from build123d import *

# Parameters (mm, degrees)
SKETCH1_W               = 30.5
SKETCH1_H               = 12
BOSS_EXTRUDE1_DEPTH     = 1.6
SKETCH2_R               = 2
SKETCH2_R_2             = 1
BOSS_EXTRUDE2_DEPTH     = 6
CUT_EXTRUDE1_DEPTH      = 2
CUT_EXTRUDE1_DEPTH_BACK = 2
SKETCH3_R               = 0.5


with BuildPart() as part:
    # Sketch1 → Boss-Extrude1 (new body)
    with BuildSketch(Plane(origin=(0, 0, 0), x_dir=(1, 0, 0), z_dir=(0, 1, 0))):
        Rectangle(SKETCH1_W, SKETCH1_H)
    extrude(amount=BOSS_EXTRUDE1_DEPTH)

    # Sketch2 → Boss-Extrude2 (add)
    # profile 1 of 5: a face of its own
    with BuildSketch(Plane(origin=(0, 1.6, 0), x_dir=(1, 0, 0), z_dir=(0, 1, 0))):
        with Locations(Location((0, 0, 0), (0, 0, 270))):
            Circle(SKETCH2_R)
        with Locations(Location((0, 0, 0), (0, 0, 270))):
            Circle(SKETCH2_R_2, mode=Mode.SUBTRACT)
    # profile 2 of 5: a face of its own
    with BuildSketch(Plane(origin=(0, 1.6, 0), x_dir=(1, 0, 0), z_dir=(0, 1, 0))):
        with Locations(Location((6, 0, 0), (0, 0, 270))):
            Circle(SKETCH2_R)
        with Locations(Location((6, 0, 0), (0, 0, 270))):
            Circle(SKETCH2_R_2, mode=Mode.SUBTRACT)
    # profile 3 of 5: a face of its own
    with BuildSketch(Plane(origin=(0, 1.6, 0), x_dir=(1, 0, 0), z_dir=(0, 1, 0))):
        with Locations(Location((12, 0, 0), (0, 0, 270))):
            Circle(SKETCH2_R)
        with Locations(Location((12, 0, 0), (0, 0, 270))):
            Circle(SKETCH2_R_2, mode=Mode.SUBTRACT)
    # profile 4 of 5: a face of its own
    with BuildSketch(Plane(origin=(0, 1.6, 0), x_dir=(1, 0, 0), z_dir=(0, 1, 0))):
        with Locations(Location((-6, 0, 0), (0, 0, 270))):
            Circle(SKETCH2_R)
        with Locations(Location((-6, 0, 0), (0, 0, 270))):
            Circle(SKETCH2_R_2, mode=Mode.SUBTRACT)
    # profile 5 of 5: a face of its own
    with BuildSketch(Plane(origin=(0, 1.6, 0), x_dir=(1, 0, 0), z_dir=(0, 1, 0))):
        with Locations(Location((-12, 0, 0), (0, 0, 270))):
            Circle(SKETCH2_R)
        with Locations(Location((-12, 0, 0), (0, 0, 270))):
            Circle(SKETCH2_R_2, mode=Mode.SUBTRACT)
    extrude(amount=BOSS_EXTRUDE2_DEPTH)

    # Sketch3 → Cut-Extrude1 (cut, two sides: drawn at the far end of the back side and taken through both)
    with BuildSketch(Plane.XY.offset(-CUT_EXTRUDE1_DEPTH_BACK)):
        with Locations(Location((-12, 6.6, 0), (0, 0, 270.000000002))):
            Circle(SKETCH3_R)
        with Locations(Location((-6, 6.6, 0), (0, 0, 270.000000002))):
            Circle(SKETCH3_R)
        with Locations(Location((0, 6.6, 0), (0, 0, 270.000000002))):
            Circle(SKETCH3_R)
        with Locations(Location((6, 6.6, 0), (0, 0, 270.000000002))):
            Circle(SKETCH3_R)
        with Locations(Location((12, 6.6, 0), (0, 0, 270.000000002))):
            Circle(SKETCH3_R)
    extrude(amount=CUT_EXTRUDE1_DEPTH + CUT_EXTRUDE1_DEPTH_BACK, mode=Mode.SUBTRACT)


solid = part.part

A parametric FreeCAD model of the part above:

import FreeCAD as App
import Part
import Sketcher
Q = App.Units.Quantity

doc = App.newDocument("Part")
params = doc.addObject("Spreadsheet::Sheet", "Params")
for row, (alias, value) in enumerate([
    ("sketch1_height", "12 mm"),
    ("sketch1_width", "30.5 mm"),
    ("pad1_length", "1.6 mm"),
    ("sketch2_diameter", "4 mm"),
    ("sketch2_diameter2", "2 mm"),
    ("pad2_length", "6 mm"),
    ("sketch3_diameter", "1 mm"),
], start=1):
    params.set(f"A{row}", alias)
    params.set(f"B{row}", "=" + value)
    params.setAlias(f"B{row}", alias)

body = doc.addObject("PartDesign::Body", "Body")

sketch1 = body.newObject("Sketcher::SketchObject", "Sketch")
sketch1.AttachmentSupport = (doc.getObject("XZ_Plane"), [""])
sketch1.MapMode = "FlatFace"
sketch1.addGeometry([
    Part.LineSegment(App.Vector(-15, -6, 0), App.Vector(-15, 6, 0)),
    Part.LineSegment(App.Vector(-15, 6, 0), App.Vector(15, 6, 0)),
    Part.LineSegment(App.Vector(15, 6, 0), App.Vector(15, -6, 0)),
    Part.LineSegment(App.Vector(15, -6, 0), App.Vector(-15, -6, 0)),
], False)
sketch1.addConstraint([
    Sketcher.Constraint("Coincident", 0, 2, 1, 1),
    Sketcher.Constraint("Coincident", 1, 2, 2, 1),
    Sketcher.Constraint("Coincident", 2, 2, 3, 1),
    Sketcher.Constraint("Coincident", 3, 2, 0, 1),
    Sketcher.Constraint("Vertical", 0),
    Sketcher.Constraint("Horizontal", 1),
    Sketcher.Constraint("Vertical", 2),
    Sketcher.Constraint("Horizontal", 3),
    Sketcher.Constraint("Symmetric", 0, 2, 2, 2, -1, 1),
    Sketcher.Constraint("DistanceY", 0, 1, 0, 2, Q("12 mm")),
    Sketcher.Constraint("DistanceX", 1, 1, 1, 2, Q("30.5 mm")),
])
sketch1.setExpression("Constraints[9]", "Params.sketch1_height")
sketch1.setExpression("Constraints[10]", "Params.sketch1_width")
pad1 = body.newObject("PartDesign::Pad", "Pad")
pad1.Profile = sketch1
pad1.setExpression("Length", "Params.pad1_length")
pad1.Reversed = True

sketch2 = body.newObject("Sketcher::SketchObject", "Sketch001")
sketch2.AttachmentSupport = (doc.getObject("XZ_Plane"), [""])
sketch2.MapMode = "FlatFace"
sketch2.AttachmentOffset = App.Placement(App.Vector(0, 0, -1.6), App.Rotation())
sketch2.addGeometry([
    Part.Circle(App.Vector(0, 0, 0), App.Vector(0, 0, 1), 2),
    Part.Circle(App.Vector(0, 0, 0), App.Vector(0, 0, 1), 1),
    Part.Circle(App.Vector(6, 0, 0), App.Vector(0, 0, 1), 2),
    Part.Circle(App.Vector(6, 0, 0), App.Vector(0, 0, 1), 1),
    Part.Circle(App.Vector(12, 0, 0), App.Vector(0, 0, 1), 2),
    Part.Circle(App.Vector(12, 0, 0), App.Vector(0, 0, 1), 1),
    Part.Circle(App.Vector(-6, 0, 0), App.Vector(0, 0, 1), 2),
    Part.Circle(App.Vector(-6, 0, 0), App.Vector(0, 0, 1), 1),
    Part.Circle(App.Vector(-12, 0, 0), App.Vector(0, 0, 1), 2),
    Part.Circle(App.Vector(-12, 0, 0), App.Vector(0, 0, 1), 1),
], False)
sketch2.addConstraint([
    Sketcher.Constraint("Coincident", 0, 3, -1, 1),
    Sketcher.Constraint("Coincident", 1, 3, -1, 1),
    Sketcher.Constraint("Coincident", 3, 3, 2, 3),
    Sketcher.Constraint("Coincident", 5, 3, 4, 3),
    Sketcher.Constraint("Coincident", 7, 3, 6, 3),
    Sketcher.Constraint("Coincident", 9, 3, 8, 3),
    Sketcher.Constraint("Equal", 0, 2),
    Sketcher.Constraint("Equal", 1, 3),
    Sketcher.Constraint("Equal", 2, 4),
    Sketcher.Constraint("Equal", 3, 5),
    Sketcher.Constraint("Equal", 4, 6),
    Sketcher.Constraint("Equal", 5, 7),
    Sketcher.Constraint("Equal", 6, 8),
    Sketcher.Constraint("Equal", 7, 9),
    Sketcher.Constraint("Symmetric", 2, 3, 6, 3, -1, 1),
    Sketcher.Constraint("Symmetric", 4, 3, 8, 3, -1, 1),
    Sketcher.Constraint("PointOnObject", 2, 3, -1),
    Sketcher.Constraint("PointOnObject", 4, 3, -1),
    Sketcher.Constraint("Diameter", 0, Q("4 mm")),
    Sketcher.Constraint("Diameter", 1, Q("2 mm")),
    Sketcher.Constraint("DistanceX", -1, 1, 2, 3, Q("6 mm")),
    Sketcher.Constraint("DistanceX", -1, 1, 4, 3, Q("12 mm")),
])
sketch2.setExpression("Constraints[18]", "Params.sketch2_diameter")
sketch2.setExpression("Constraints[19]", "Params.sketch2_diameter2")
pad2 = body.newObject("PartDesign::Pad", "Pad001")
pad2.Profile = sketch2
pad2.setExpression("Length", "Params.pad2_length")
pad2.Reversed = True

sketch3 = body.newObject("Sketcher::SketchObject", "Sketch002")
sketch3.AttachmentSupport = (doc.getObject("XY_Plane"), [""])
sketch3.MapMode = "FlatFace"
sketch3.addGeometry([
    Part.Circle(App.Vector(-12, 6.6, 0), App.Vector(0, 0, 1), 0.5),
    Part.Circle(App.Vector(-6, 6.6, 0), App.Vector(0, 0, 1), 0.5),
    Part.Circle(App.Vector(0, 6.6, 0), App.Vector(0, 0, 1), 0.5),
    Part.Circle(App.Vector(6, 6.6, 0), App.Vector(0, 0, 1), 0.5),
    Part.Circle(App.Vector(12, 6.6, 0), App.Vector(0, 0, 1), 0.5),
], False)
sketch3.addConstraint([
    Sketcher.Constraint("Equal", 0, 1),
    Sketcher.Constraint("Equal", 1, 2),
    Sketcher.Constraint("Equal", 2, 3),
    Sketcher.Constraint("Equal", 3, 4),
    Sketcher.Constraint("Symmetric", 1, 3, 3, 3, -2),
    Sketcher.Constraint("Symmetric", 0, 3, 4, 3, -2),
    Sketcher.Constraint("PointOnObject", 2, 3, -2),
    Sketcher.Constraint("Horizontal", 0, 3, 1, 3),
    Sketcher.Constraint("Horizontal", 1, 3, 2, 3),
    Sketcher.Constraint("Diameter", 0, Q("1 mm")),
    Sketcher.Constraint("DistanceX", 0, 3, -1, 1, Q("12 mm")),
    Sketcher.Constraint("DistanceX", 1, 3, -1, 1, Q("6 mm")),
    Sketcher.Constraint("DistanceY", -1, 1, 0, 3, Q("6.6 mm")),
])
sketch3.setExpression("Constraints[9]", "Params.sketch3_diameter")
pocket1 = body.newObject("PartDesign::Pocket", "Pocket")
pocket1.Profile = sketch3
pocket1.Type = "ThroughAll"
pocket1.Midplane = True

doc.recompute()
